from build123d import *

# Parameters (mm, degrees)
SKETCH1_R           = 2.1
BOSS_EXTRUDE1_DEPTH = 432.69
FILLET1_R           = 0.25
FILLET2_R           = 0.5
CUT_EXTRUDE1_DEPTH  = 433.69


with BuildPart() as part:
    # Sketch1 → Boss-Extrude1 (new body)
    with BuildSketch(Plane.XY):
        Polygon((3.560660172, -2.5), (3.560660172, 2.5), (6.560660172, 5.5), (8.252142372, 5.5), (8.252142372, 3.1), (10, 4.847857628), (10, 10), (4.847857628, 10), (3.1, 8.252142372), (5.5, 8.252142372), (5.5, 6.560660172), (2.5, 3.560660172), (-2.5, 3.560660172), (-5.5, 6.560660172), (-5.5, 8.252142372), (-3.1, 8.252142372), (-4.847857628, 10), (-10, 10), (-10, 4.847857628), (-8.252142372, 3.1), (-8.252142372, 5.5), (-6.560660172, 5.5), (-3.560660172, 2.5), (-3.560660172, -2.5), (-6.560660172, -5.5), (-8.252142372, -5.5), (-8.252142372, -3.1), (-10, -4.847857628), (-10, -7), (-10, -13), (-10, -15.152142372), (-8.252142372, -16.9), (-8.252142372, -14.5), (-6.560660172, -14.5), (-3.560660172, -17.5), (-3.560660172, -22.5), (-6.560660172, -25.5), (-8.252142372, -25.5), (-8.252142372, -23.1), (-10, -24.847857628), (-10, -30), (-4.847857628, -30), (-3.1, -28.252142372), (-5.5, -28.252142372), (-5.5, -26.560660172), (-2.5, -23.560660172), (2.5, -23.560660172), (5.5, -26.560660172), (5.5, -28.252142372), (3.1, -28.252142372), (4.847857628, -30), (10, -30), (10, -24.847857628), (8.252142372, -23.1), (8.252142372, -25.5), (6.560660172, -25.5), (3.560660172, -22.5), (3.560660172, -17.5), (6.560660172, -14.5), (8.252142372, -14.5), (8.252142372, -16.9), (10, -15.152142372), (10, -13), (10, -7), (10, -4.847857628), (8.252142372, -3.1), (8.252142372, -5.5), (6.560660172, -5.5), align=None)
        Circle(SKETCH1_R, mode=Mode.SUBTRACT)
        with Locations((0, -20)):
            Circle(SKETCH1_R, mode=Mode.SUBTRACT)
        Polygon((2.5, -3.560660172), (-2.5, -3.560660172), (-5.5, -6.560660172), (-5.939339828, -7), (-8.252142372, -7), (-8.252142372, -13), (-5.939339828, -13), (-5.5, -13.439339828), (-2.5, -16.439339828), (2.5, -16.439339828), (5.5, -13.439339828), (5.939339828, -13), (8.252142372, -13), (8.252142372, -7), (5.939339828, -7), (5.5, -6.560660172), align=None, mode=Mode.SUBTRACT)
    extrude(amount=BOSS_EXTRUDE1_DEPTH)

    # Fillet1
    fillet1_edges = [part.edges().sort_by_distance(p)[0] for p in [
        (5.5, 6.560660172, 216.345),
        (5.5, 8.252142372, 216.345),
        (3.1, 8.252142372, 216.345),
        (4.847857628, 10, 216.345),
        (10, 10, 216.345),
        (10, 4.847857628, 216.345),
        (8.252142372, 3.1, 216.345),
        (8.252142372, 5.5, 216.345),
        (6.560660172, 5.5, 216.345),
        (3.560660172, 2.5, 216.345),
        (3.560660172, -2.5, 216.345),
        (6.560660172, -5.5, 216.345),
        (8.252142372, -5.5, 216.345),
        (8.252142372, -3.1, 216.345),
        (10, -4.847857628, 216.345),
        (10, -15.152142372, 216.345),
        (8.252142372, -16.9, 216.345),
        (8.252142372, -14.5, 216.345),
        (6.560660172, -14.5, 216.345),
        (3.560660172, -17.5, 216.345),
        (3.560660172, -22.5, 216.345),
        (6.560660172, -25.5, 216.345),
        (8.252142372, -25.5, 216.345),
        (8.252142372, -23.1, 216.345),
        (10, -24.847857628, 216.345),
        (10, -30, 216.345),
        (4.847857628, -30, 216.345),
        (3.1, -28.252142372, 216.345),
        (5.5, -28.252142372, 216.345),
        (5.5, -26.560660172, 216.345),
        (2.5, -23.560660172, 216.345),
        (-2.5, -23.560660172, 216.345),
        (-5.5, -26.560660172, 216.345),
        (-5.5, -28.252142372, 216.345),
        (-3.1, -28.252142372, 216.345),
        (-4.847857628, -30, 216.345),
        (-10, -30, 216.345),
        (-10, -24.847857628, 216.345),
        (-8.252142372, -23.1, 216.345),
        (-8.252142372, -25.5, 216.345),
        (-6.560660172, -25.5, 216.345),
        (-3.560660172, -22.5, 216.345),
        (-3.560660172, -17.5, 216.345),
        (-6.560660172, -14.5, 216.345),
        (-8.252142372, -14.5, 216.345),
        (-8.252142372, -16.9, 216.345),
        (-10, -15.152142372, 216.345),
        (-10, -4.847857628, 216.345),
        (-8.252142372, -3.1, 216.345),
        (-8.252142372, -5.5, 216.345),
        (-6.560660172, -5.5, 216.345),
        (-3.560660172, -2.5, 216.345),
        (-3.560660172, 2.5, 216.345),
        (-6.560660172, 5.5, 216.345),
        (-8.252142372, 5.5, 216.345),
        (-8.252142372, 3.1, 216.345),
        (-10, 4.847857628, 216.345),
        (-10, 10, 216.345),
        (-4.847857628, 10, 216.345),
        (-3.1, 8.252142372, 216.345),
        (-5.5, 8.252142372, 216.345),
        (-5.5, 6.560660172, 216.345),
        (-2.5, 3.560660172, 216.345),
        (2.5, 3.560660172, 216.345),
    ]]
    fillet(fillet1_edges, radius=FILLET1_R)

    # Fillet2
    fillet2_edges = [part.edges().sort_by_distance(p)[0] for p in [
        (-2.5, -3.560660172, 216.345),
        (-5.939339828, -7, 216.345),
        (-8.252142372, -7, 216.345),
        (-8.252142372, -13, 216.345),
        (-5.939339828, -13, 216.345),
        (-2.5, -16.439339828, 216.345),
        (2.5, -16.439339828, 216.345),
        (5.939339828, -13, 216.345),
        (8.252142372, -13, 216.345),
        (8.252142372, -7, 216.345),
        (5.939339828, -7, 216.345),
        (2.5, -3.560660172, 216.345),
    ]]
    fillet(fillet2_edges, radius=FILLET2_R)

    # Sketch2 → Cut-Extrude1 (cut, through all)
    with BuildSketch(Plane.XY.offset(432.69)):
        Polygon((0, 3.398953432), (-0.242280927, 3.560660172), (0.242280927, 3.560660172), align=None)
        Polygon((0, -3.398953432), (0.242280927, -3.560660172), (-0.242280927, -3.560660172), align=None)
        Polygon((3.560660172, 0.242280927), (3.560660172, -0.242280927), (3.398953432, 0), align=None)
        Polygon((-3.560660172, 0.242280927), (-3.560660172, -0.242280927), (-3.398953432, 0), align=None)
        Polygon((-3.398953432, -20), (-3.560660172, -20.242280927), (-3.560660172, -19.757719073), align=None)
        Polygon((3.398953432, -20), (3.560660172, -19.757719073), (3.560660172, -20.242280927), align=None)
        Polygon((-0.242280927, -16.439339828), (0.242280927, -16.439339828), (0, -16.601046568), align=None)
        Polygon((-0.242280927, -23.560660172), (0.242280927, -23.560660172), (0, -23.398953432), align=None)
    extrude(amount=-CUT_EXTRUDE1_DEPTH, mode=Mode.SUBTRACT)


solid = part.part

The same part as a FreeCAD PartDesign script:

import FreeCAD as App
import Part
import Sketcher

V = App.Vector


def edges_at(feature, points):
    """Names of the edges that pass closest to the given points."""
    edges = feature.Shape.Edges
    near = lambda p: min(range(len(edges)), key=lambda i: edges[i].distToShape(Part.Vertex(*p))[0])
    return sorted({f"Edge{near(p) + 1}" for p in points})

doc = App.newDocument("Part")
body = doc.addObject("PartDesign::Body", "Body")

# Sketch on XY plane
sketch1 = doc.addObject("Sketcher::SketchObject", "Sketch")
body.addObject(sketch1)
sketch1.AttachmentSupport = (doc.XY_Plane, [""])
sketch1.MapMode = "FlatFace"
sketch1.addGeometry([
    Part.LineSegment(V(3.6, -2.5, 0), V(3.6, 2.5, 0)),  # 0
    Part.LineSegment(V(3.6, 2.5, 0), V(6.6, 5.5, 0)),  # 1
    Part.LineSegment(V(6.6, 5.5, 0), V(8.3, 5.5, 0)),  # 2
    Part.LineSegment(V(8.3, 5.5, 0), V(8.3, 3.1, 0)),  # 3
    Part.LineSegment(V(8.3, 3.1, 0), V(10, 4.8, 0)),  # 4
    Part.LineSegment(V(10, 4.8, 0), V(10, 10, 0)),  # 5
    Part.LineSegment(V(10, 10, 0), V(4.8, 10, 0)),  # 6
    Part.LineSegment(V(4.8, 10, 0), V(3.1, 8.3, 0)),  # 7
    Part.LineSegment(V(3.1, 8.3, 0), V(5.5, 8.3, 0)),  # 8
    Part.LineSegment(V(5.5, 8.3, 0), V(5.5, 6.6, 0)),  # 9
    Part.LineSegment(V(5.5, 6.6, 0), V(2.5, 3.6, 0)),  # 10
    Part.LineSegment(V(2.5, 3.6, 0), V(-2.5, 3.6, 0)),  # 11
    Part.LineSegment(V(-2.5, 3.6, 0), V(-5.5, 6.6, 0)),  # 12
    Part.LineSegment(V(-5.5, 6.6, 0), V(-5.5, 8.3, 0)),  # 13
    Part.LineSegment(V(-5.5, 8.3, 0), V(-3.1, 8.3, 0)),  # 14
    Part.LineSegment(V(-3.1, 8.3, 0), V(-4.8, 10, 0)),  # 15
    Part.LineSegment(V(-4.8, 10, 0), V(-10, 10, 0)),  # 16
    Part.LineSegment(V(-10, 10, 0), V(-10, 4.8, 0)),  # 17
    Part.LineSegment(V(-10, 4.8, 0), V(-8.3, 3.1, 0)),  # 18
    Part.LineSegment(V(-8.3, 3.1, 0), V(-8.3, 5.5, 0)),  # 19
    Part.LineSegment(V(-8.3, 5.5, 0), V(-6.6, 5.5, 0)),  # 20
    Part.LineSegment(V(-6.6, 5.5, 0), V(-3.6, 2.5, 0)),  # 21
    Part.LineSegment(V(-3.6, 2.5, 0), V(-3.6, -2.5, 0)),  # 22
    Part.LineSegment(V(-3.6, -2.5, 0), V(-6.6, -5.5, 0)),  # 23
    Part.LineSegment(V(-6.6, -5.5, 0), V(-8.3, -5.5, 0)),  # 24
    Part.LineSegment(V(-8.3, -5.5, 0), V(-8.3, -3.1, 0)),  # 25
    Part.LineSegment(V(-8.3, -3.1, 0), V(-10, -4.8, 0)),  # 26
    Part.LineSegment(V(-10, -4.8, 0), V(-10, -15.2, 0)),  # 27
    Part.LineSegment(V(-10, -15.2, 0), V(-8.3, -16.9, 0)),  # 28
    Part.LineSegment(V(-8.3, -16.9, 0), V(-8.3, -14.5, 0)),  # 29
    Part.LineSegment(V(-8.3, -14.5, 0), V(-6.6, -14.5, 0)),  # 30
    Part.LineSegment(V(-6.6, -14.5, 0), V(-3.6, -17.5, 0)),  # 31
    Part.LineSegment(V(-3.6, -17.5, 0), V(-3.6, -22.5, 0)),  # 32
    Part.LineSegment(V(-3.6, -22.5, 0), V(-6.6, -25.5, 0)),  # 33
    Part.LineSegment(V(-6.6, -25.5, 0), V(-8.3, -25.5, 0)),  # 34
    Part.LineSegment(V(-8.3, -25.5, 0), V(-8.3, -23.1, 0)),  # 35
    Part.LineSegment(V(-8.3, -23.1, 0), V(-10, -24.8, 0)),  # 36
    Part.LineSegment(V(-10, -24.8, 0), V(-10, -30, 0)),  # 37
    Part.LineSegment(V(-10, -30, 0), V(-4.8, -30, 0)),  # 38
    Part.LineSegment(V(-4.8, -30, 0), V(-3.1, -28.3, 0)),  # 39
    Part.LineSegment(V(-3.1, -28.3, 0), V(-5.5, -28.3, 0)),  # 40
    Part.LineSegment(V(-5.5, -28.3, 0), V(-5.5, -26.6, 0)),  # 41
    Part.LineSegment(V(-5.5, -26.6, 0), V(-2.5, -23.6, 0)),  # 42
    Part.LineSegment(V(-2.5, -23.6, 0), V(2.5, -23.6, 0)),  # 43
    Part.LineSegment(V(2.5, -23.6, 0), V(5.5, -26.6, 0)),  # 44
    Part.LineSegment(V(5.5, -26.6, 0), V(5.5, -28.3, 0)),  # 45
    Part.LineSegment(V(5.5, -28.3, 0), V(3.1, -28.3, 0)),  # 46
    Part.LineSegment(V(3.1, -28.3, 0), V(4.8, -30, 0)),  # 47
    Part.LineSegment(V(4.8, -30, 0), V(10, -30, 0)),  # 48
    Part.LineSegment(V(10, -30, 0), V(10, -24.8, 0)),  # 49
    Part.LineSegment(V(10, -24.8, 0), V(8.3, -23.1, 0)),  # 50
    Part.LineSegment(V(8.3, -23.1, 0), V(8.3, -25.5, 0)),  # 51
    Part.LineSegment(V(8.3, -25.5, 0), V(6.6, -25.5, 0)),  # 52
    Part.LineSegment(V(6.6, -25.5, 0), V(3.6, -22.5, 0)),  # 53
    Part.LineSegment(V(3.6, -22.5, 0), V(3.6, -17.5, 0)),  # 54
    Part.LineSegment(V(3.6, -17.5, 0), V(6.6, -14.5, 0)),  # 55
    Part.LineSegment(V(6.6, -14.5, 0), V(8.3, -14.5, 0)),  # 56
    Part.LineSegment(V(8.3, -14.5, 0), V(8.3, -16.9, 0)),  # 57
    Part.LineSegment(V(8.3, -16.9, 0), V(10, -15.2, 0)),  # 58
    Part.LineSegment(V(10, -15.2, 0), V(10, -4.8, 0)),  # 59
    Part.LineSegment(V(10, -4.8, 0), V(8.3, -3.1, 0)),  # 60
    Part.LineSegment(V(8.3, -3.1, 0), V(8.3, -5.5, 0)),  # 61
    Part.LineSegment(V(8.3, -5.5, 0), V(6.6, -5.5, 0)),  # 62
    Part.LineSegment(V(6.6, -5.5, 0), V(3.6, -2.5, 0)),  # 63
    Part.Circle(V(0, -20, 0), V(0, 0, 1), 2.1),  # 64
    Part.LineSegment(V(-2.5, -3.6, 0), V(2.5, -3.6, 0)),  # 65
    Part.LineSegment(V(2.5, -3.6, 0), V(5.9, -7, 0)),  # 66
    Part.LineSegment(V(5.9, -7, 0), V(8.3, -7, 0)),  # 67
    Part.LineSegment(V(8.3, -7, 0), V(8.3, -13, 0)),  # 68
    Part.LineSegment(V(8.3, -13, 0), V(5.9, -13, 0)),  # 69
    Part.LineSegment(V(5.9, -13, 0), V(2.5, -16.4, 0)),  # 70
    Part.LineSegment(V(2.5, -16.4, 0), V(-2.5, -16.4, 0)),  # 71
    Part.LineSegment(V(-2.5, -16.4, 0), V(-5.9, -13, 0)),  # 72
    Part.LineSegment(V(-5.9, -13, 0), V(-8.3, -13, 0)),  # 73
    Part.LineSegment(V(-8.3, -13, 0), V(-8.3, -7, 0)),  # 74
    Part.LineSegment(V(-8.3, -7, 0), V(-5.9, -7, 0)),  # 75
    Part.LineSegment(V(-5.9, -7, 0), V(-2.5, -3.6, 0)),  # 76
    Part.Circle(V(0, 0, 0), V(0, 0, 1), 2.1),  # 77
], False)
sketch1.addConstraint([
    Sketcher.Constraint("Coincident", 0, 2, 1, 1),
    Sketcher.Constraint("Coincident", 1, 2, 2, 1),
    Sketcher.Constraint("Coincident", 2, 2, 3, 1),
    Sketcher.Constraint("Coincident", 3, 2, 4, 1),
    Sketcher.Constraint("Coincident", 4, 2, 5, 1),
    Sketcher.Constraint("Coincident", 5, 2, 6, 1),
    Sketcher.Constraint("Coincident", 6, 2, 7, 1),
    Sketcher.Constraint("Coincident", 7, 2, 8, 1),
    Sketcher.Constraint("Coincident", 8, 2, 9, 1),
    Sketcher.Constraint("Coincident", 9, 2, 10, 1),
    Sketcher.Constraint("Coincident", 10, 2, 11, 1),
    Sketcher.Constraint("Coincident", 11, 2, 12, 1),
    Sketcher.Constraint("Coincident", 12, 2, 13, 1),
    Sketcher.Constraint("Coincident", 13, 2, 14, 1),
    Sketcher.Constraint("Coincident", 14, 2, 15, 1),
    Sketcher.Constraint("Coincident", 15, 2, 16, 1),
    Sketcher.Constraint("Coincident", 16, 2, 17, 1),
    Sketcher.Constraint("Coincident", 17, 2, 18, 1),
    Sketcher.Constraint("Coincident", 18, 2, 19, 1),
    Sketcher.Constraint("Coincident", 19, 2, 20, 1),
    Sketcher.Constraint("Coincident", 20, 2, 21, 1),
    Sketcher.Constraint("Coincident", 21, 2, 22, 1),
    Sketcher.Constraint("Coincident", 22, 2, 23, 1),
    Sketcher.Constraint("Coincident", 23, 2, 24, 1),
    Sketcher.Constraint("Coincident", 24, 2, 25, 1),
    Sketcher.Constraint("Coincident", 25, 2, 26, 1),
    Sketcher.Constraint("Coincident", 26, 2, 27, 1),
    Sketcher.Constraint("Coincident", 27, 2, 28, 1),
    Sketcher.Constraint("Coincident", 28, 2, 29, 1),
    Sketcher.Constraint("Coincident", 29, 2, 30, 1),
    Sketcher.Constraint("Coincident", 30, 2, 31, 1),
    Sketcher.Constraint("Coincident", 31, 2, 32, 1),
    Sketcher.Constraint("Coincident", 32, 2, 33, 1),
    Sketcher.Constraint("Coincident", 33, 2, 34, 1),
    Sketcher.Constraint("Coincident", 34, 2, 35, 1),
    Sketcher.Constraint("Coincident", 35, 2, 36, 1),
    Sketcher.Constraint("Coincident", 36, 2, 37, 1),
    Sketcher.Constraint("Coincident", 37, 2, 38, 1),
    Sketcher.Constraint("Coincident", 38, 2, 39, 1),
    Sketcher.Constraint("Coincident", 39, 2, 40, 1),
    Sketcher.Constraint("Coincident", 40, 2, 41, 1),
    Sketcher.Constraint("Coincident", 41, 2, 42, 1),
    Sketcher.Constraint("Coincident", 42, 2, 43, 1),
    Sketcher.Constraint("Coincident", 43, 2, 44, 1),
    Sketcher.Constraint("Coincident", 44, 2, 45, 1),
    Sketcher.Constraint("Coincident", 45, 2, 46, 1),
    Sketcher.Constraint("Coincident", 46, 2, 47, 1),
    Sketcher.Constraint("Coincident", 47, 2, 48, 1),
    Sketcher.Constraint("Coincident", 48, 2, 49, 1),
    Sketcher.Constraint("Coincident", 49, 2, 50, 1),
    Sketcher.Constraint("Coincident", 50, 2, 51, 1),
    Sketcher.Constraint("Coincident", 51, 2, 52, 1),
    Sketcher.Constraint("Coincident", 52, 2, 53, 1),
    Sketcher.Constraint("Coincident", 53, 2, 54, 1),
    Sketcher.Constraint("Coincident", 54, 2, 55, 1),
    Sketcher.Constraint("Coincident", 55, 2, 56, 1),
    Sketcher.Constraint("Coincident", 56, 2, 57, 1),
    Sketcher.Constraint("Coincident", 57, 2, 58, 1),
    Sketcher.Constraint("Coincident", 58, 2, 59, 1),
    Sketcher.Constraint("Coincident", 59, 2, 60, 1),
    Sketcher.Constraint("Coincident", 60, 2, 61, 1),
    Sketcher.Constraint("Coincident", 61, 2, 62, 1),
    Sketcher.Constraint("Coincident", 62, 2, 63, 1),
    Sketcher.Constraint("Coincident", 63, 2, 0, 1),
    Sketcher.Constraint("Coincident", 65, 2, 66, 1),
    Sketcher.Constraint("Coincident", 66, 2, 67, 1),
    Sketcher.Constraint("Coincident", 67, 2, 68, 1),
    Sketcher.Constraint("Coincident", 68, 2, 69, 1),
    Sketcher.Constraint("Coincident", 69, 2, 70, 1),
    Sketcher.Constraint("Coincident", 70, 2, 71, 1),
    Sketcher.Constraint("Coincident", 71, 2, 72, 1),
    Sketcher.Constraint("Coincident", 72, 2, 73, 1),
    Sketcher.Constraint("Coincident", 73, 2, 74, 1),
    Sketcher.Constraint("Coincident", 74, 2, 75, 1),
    Sketcher.Constraint("Coincident", 75, 2, 76, 1),
    Sketcher.Constraint("Coincident", 76, 2, 65, 1),
    Sketcher.Constraint("Vertical", 0),
    Sketcher.Constraint("Horizontal", 2),
    Sketcher.Constraint("Vertical", 3),
    Sketcher.Constraint("Vertical", 5),
    Sketcher.Constraint("Horizontal", 6),
    Sketcher.Constraint("Horizontal", 8),
    Sketcher.Constraint("Vertical", 9),
    Sketcher.Constraint("Horizontal", 11),
    Sketcher.Constraint("Vertical", 13),
    Sketcher.Constraint("Horizontal", 14),
    Sketcher.Constraint("Horizontal", 16),
    Sketcher.Constraint("Vertical", 17),
    Sketcher.Constraint("Vertical", 19),
    Sketcher.Constraint("Horizontal", 20),
    Sketcher.Constraint("Vertical", 22),
    Sketcher.Constraint("Horizontal", 24),
    Sketcher.Constraint("Vertical", 25),
    Sketcher.Constraint("Vertical", 27),
    Sketcher.Constraint("Vertical", 29),
    Sketcher.Constraint("Horizontal", 30),
    Sketcher.Constraint("Vertical", 32),
    Sketcher.Constraint("Horizontal", 34),
    Sketcher.Constraint("Vertical", 35),
    Sketcher.Constraint("Vertical", 37),
    Sketcher.Constraint("Horizontal", 38),
    Sketcher.Constraint("Horizontal", 40),
    Sketcher.Constraint("Vertical", 41),
    Sketcher.Constraint("Horizontal", 43),
    Sketcher.Constraint("Vertical", 45),
    Sketcher.Constraint("Horizontal", 46),
    Sketcher.Constraint("Horizontal", 48),
    Sketcher.Constraint("Vertical", 49),
    Sketcher.Constraint("Vertical", 51),
    Sketcher.Constraint("Horizontal", 52),
    Sketcher.Constraint("Vertical", 54),
    Sketcher.Constraint("Horizontal", 56),
    Sketcher.Constraint("Vertical", 57),
    Sketcher.Constraint("Vertical", 59),
    Sketcher.Constraint("Vertical", 61),
    Sketcher.Constraint("Horizontal", 62),
    Sketcher.Constraint("Horizontal", 65),
    Sketcher.Constraint("Horizontal", 67),
    Sketcher.Constraint("Vertical", 68),
    Sketcher.Constraint("Horizontal", 69),
    Sketcher.Constraint("Horizontal", 71),
    Sketcher.Constraint("Horizontal", 73),
    Sketcher.Constraint("Vertical", 74),
    Sketcher.Constraint("Horizontal", 75),
    Sketcher.Constraint("Coincident", 77, 3, -1, 1),
    Sketcher.Constraint("Equal", 64, 77),
    Sketcher.Constraint("Symmetric", 0, 2, 22, 2, -1, 1),
    Sketcher.Constraint("Symmetric", 1, 2, 23, 2, -1, 1),
    Sketcher.Constraint("Symmetric", 3, 2, 25, 2, -1, 1),
    Sketcher.Constraint("Symmetric", 4, 2, 26, 2, -1, 1),
    Sketcher.Constraint("Symmetric", 17, 2, 59, 2, -1, 1),
    Sketcher.Constraint("Symmetric", 18, 2, 60, 2, -1, 1),
    Sketcher.Constraint("Symmetric", 20, 2, 62, 2, -1, 1),
    Sketcher.Constraint("Symmetric", 11, 2, 65, 2, -1, 1),
    Sketcher.Constraint("Symmetric", 9, 2, 12, 2, -2),
    Sketcher.Constraint("Symmetric", 7, 2, 14, 2, -2),
    Sketcher.Constraint("Symmetric", 6, 2, 15, 2, -2),
    Sketcher.Constraint("Symmetric", 4, 2, 17, 2, -2),
    Sketcher.Constraint("Symmetric", 3, 2, 18, 2, -2),
    Sketcher.Constraint("Symmetric", 1, 2, 20, 2, -2),
    Sketcher.Constraint("Symmetric", 41, 2, 44, 2, -2),
    Sketcher.Constraint("Symmetric", 39, 2, 46, 2, -2),
    Sketcher.Constraint("Symmetric", 38, 2, 47, 2, -2),
    Sketcher.Constraint("Symmetric", 36, 2, 49, 2, -2),
    Sketcher.Constraint("Symmetric", 35, 2, 50, 2, -2),
    Sketcher.Constraint("Symmetric", 33, 2, 52, 2, -2),
    Sketcher.Constraint("Symmetric", 32, 2, 53, 2, -2),
    Sketcher.Constraint("Symmetric", 30, 2, 55, 2, -2),
    Sketcher.Constraint("Symmetric", 28, 2, 57, 2, -2),
    Sketcher.Constraint("Symmetric", 69, 2, 72, 2, -2),
    Sketcher.Constraint("Symmetric", 67, 2, 74, 2, -2),
    Sketcher.Constraint("PointOnObject", 64, 3, -2),
    Sketcher.Constraint("Parallel", 1, 4),
    Sketcher.Constraint("Parallel", 4, 7),
    Sketcher.Constraint("Parallel", 7, 10),
    Sketcher.Constraint("Perpendicular", 10, 12),
    Sketcher.Constraint("Parallel", 12, 15),
    Sketcher.Constraint("Parallel", 18, 21),
    Sketcher.Constraint("Perpendicular", 26, 28),
    Sketcher.Constraint("Parallel", 28, 31),
    Sketcher.Constraint("Perpendicular", 31, 33),
    Sketcher.Constraint("Parallel", 33, 36),
    Sketcher.Constraint("Parallel", 36, 39),
    Sketcher.Constraint("Parallel", 39, 42),
    Sketcher.Constraint("Perpendicular", 42, 44),
    Sketcher.Constraint("Perpendicular", 53, 55),
    Sketcher.Constraint("Parallel", 55, 58),
    Sketcher.Constraint("Parallel", 60, 63),
    Sketcher.Constraint("Parallel", 63, 66),
    Sketcher.Constraint("Perpendicular", 66, 70),
    Sketcher.Constraint("Perpendicular", 70, 72),
    Sketcher.Constraint("Perpendicular", 72, 76),
    Sketcher.Constraint("Vertical", 25, 2, 28, 2),
    Sketcher.Constraint("Vertical", 23, 2, 30, 2),
    Sketcher.Constraint("Vertical", 22, 2, 31, 2),
    Sketcher.Constraint("Vertical", 30, 2, 33, 2),
    Sketcher.Constraint("Vertical", 29, 2, 34, 2),
    Sketcher.Constraint("Vertical", 27, 2, 36, 2),
    Sketcher.Constraint("Vertical", 15, 2, 38, 2),
    Sketcher.Constraint("Vertical", 14, 2, 39, 2),
    Sketcher.Constraint("Vertical", 13, 2, 40, 2),
    Sketcher.Constraint("Vertical", 11, 2, 42, 2),
    Sketcher.Constraint("Vertical", 61, 2, 67, 2),
    Sketcher.Constraint("Vertical", 66, 2, 69, 2),
    Sketcher.Constraint("Vertical", 65, 2, 70, 2),
    Sketcher.Constraint("Vertical", 72, 2, 75, 2),
    Sketcher.Constraint("Equal", 71, 0),
    Sketcher.Constraint("Equal", 46, 3),
    Sketcher.Constraint("Equal", 48, 5),
    Sketcher.Constraint("Equal", 62, 9),
    Sketcher.Constraint("Equal", 25, 29),
    Sketcher.Constraint("Equal", 22, 32),
    Sketcher.Constraint("Equal", 29, 35),
    Sketcher.Constraint("Equal", 17, 37),
    Sketcher.Constraint("Equal", 13, 41),
    Sketcher.Constraint("Equal", 4, 7),
    Sketcher.Constraint("Equal", 1, 10),
    Sketcher.Constraint("Diameter", 64, 4.2),
    Sketcher.Constraint("DistanceX", 11, 2, 11, 1, 5.0),
    Sketcher.Constraint("DistanceY", 68, 2, 68, 1, 6.0),
    Sketcher.Constraint("DistanceX", 8, 1, 8, 2, 2.4),
    Sketcher.Constraint("DistanceY", 64, 3, -1, 1, 20.0),
    Sketcher.Constraint("DistanceX", -1, 1, 4, 2, 10.0),
    Sketcher.Constraint("DistanceY", 37, 2, -1, 1, 30.0),
    Sketcher.Constraint("DistanceY", 66, 2, -1, 1, 7.0),
    Sketcher.Constraint("DistanceY", -1, 1, 1, 2, 5.5),
    Sketcher.Constraint("Distance", 66, 4.863961),
    Sketcher.Constraint("DistanceX", 2, 1, 2, 2, 1.691482),
])
pad1 = doc.addObject("PartDesign::Pad", "Pad")
body.addObject(pad1)
pad1.Profile = sketch1
pad1.Length = 432.69
doc.recompute()

fillet = doc.addObject("PartDesign::Fillet", "Fillet")
body.addObject(fillet)
fillet.Base = (pad1, edges_at(pad1, [
    (5.5, 6.561, 216.345),
    (5.5, 8.252, 216.345),
    (3.1, 8.252, 216.345),
    (4.848, 10, 216.345),
    (10, 10, 216.345),
    (10, 4.848, 216.345),
    (8.252, 3.1, 216.345),
    (8.252, 5.5, 216.345),
    (6.561, 5.5, 216.345),
    (3.561, 2.5, 216.345),
    (3.561, -2.5, 216.345),
    (6.561, -5.5, 216.345),
    (8.252, -5.5, 216.345),
    (8.252, -3.1, 216.345),
    (10, -4.848, 216.345),
    (10, -15.152, 216.345),
    (8.252, -16.9, 216.345),
    (8.252, -14.5, 216.345),
    (6.561, -14.5, 216.345),
    (3.561, -17.5, 216.345),
    (3.561, -22.5, 216.345),
    (6.561, -25.5, 216.345),
    (8.252, -25.5, 216.345),
    (8.252, -23.1, 216.345),
    (10, -24.848, 216.345),
    (10, -30, 216.345),
    (4.848, -30, 216.345),
    (3.1, -28.252, 216.345),
    (5.5, -28.252, 216.345),
    (5.5, -26.561, 216.345),
    (2.5, -23.561, 216.345),
    (-2.5, -23.561, 216.345),
    (-5.5, -26.561, 216.345),
    (-5.5, -28.252, 216.345),
    (-3.1, -28.252, 216.345),
    (-4.848, -30, 216.345),
    (-10, -30, 216.345),
    (-10, -24.848, 216.345),
    (-8.252, -23.1, 216.345),
    (-8.252, -25.5, 216.345),
    (-6.561, -25.5, 216.345),
    (-3.561, -22.5, 216.345),
    (-3.561, -17.5, 216.345),
    (-6.561, -14.5, 216.345),
    (-8.252, -14.5, 216.345),
    (-8.252, -16.9, 216.345),
    (-10, -15.152, 216.345),
    (-10, -4.848, 216.345),
    (-8.252, -3.1, 216.345),
    (-8.252, -5.5, 216.345),
    (-6.561, -5.5, 216.345),
    (-3.561, -2.5, 216.345),
    (-3.561, 2.5, 216.345),
    (-6.561, 5.5, 216.345),
    (-8.252, 5.5, 216.345),
    (-8.252, 3.1, 216.345),
    (-10, 4.848, 216.345),
    (-10, 10, 216.345),
    (-4.848, 10, 216.345),
    (-3.1, 8.252, 216.345),
    (-5.5, 8.252, 216.345),
    (-5.5, 6.561, 216.345),
    (-2.5, 3.561, 216.345),
    (2.5, 3.561, 216.345),
]))
fillet.Radius = 0.25
doc.recompute()

fillet2 = doc.addObject("PartDesign::Fillet", "Fillet001")
body.addObject(fillet2)
fillet2.Base = (fillet, edges_at(fillet, [
    (-2.5, -3.561, 216.345),
    (-5.939, -7, 216.345),
    (-8.252, -7, 216.345),
    (-8.252, -13, 216.345),
    (-5.939, -13, 216.345),
    (-2.5, -16.439, 216.345),
    (2.5, -16.439, 216.345),
    (5.939, -13, 216.345),
    (8.252, -13, 216.345),
    (8.252, -7, 216.345),
    (5.939, -7, 216.345),
    (2.5, -3.561, 216.345),
]))
fillet2.Radius = 0.5

# Sketch on XY plane
sketch2 = doc.addObject("Sketcher::SketchObject", "Sketch001")
body.addObject(sketch2)
sketch2.AttachmentSupport = (doc.XY_Plane, [""])
sketch2.MapMode = "FlatFace"
sketch2.AttachmentOffset = App.Placement(V(0, 0, 432.69), App.Rotation())
sketch2.addGeometry([
    Part.LineSegment(V(-0.24, 3.56, 0), V(0, 3.4, 0)),  # 0
    Part.LineSegment(V(0, 3.4, 0), V(0.24, 3.56, 0)),  # 1
    Part.LineSegment(V(0.24, 3.56, 0), V(-0.24, 3.56, 0)),  # 2
    Part.LineSegment(V(0.24, -3.56, 0), V(0, -3.4, 0)),  # 3
    Part.LineSegment(V(0, -3.4, 0), V(-0.24, -3.56, 0)),  # 4
    Part.LineSegment(V(-0.24, -3.56, 0), V(0.24, -3.56, 0)),  # 5
    Part.LineSegment(V(3.56, -0.24, 0), V(3.56, 0.24, 0)),  # 6
    Part.LineSegment(V(3.56, 0.24, 0), V(3.4, 0, 0)),  # 7
    Part.LineSegment(V(3.4, 0, 0), V(3.56, -0.24, 0)),  # 8
    Part.LineSegment(V(-3.56, 0.24, 0), V(-3.56, -0.24, 0)),  # 9
    Part.LineSegment(V(-3.56, -0.24, 0), V(-3.4, 0, 0)),  # 10
    Part.LineSegment(V(-3.4, 0, 0), V(-3.56, 0.24, 0)),  # 11
    Part.LineSegment(V(-3.56, -20.24, 0), V(-3.4, -20, 0)),  # 12
    Part.LineSegment(V(-3.4, -20, 0), V(-3.56, -19.76, 0)),  # 13
    Part.LineSegment(V(-3.56, -19.76, 0), V(-3.56, -20.24, 0)),  # 14
    Part.LineSegment(V(3.56, -19.76, 0), V(3.4, -20, 0)),  # 15
    Part.LineSegment(V(3.4, -20, 0), V(3.56, -20.24, 0)),  # 16
    Part.LineSegment(V(3.56, -20.24, 0), V(3.56, -19.76, 0)),  # 17
    Part.LineSegment(V(0.24, -16.44, 0), V(-0.24, -16.44, 0)),  # 18
    Part.LineSegment(V(-0.24, -16.44, 0), V(0, -16.6, 0)),  # 19
    Part.LineSegment(V(0, -16.6, 0), V(0.24, -16.44, 0)),  # 20
    Part.LineSegment(V(-0.24, -23.56, 0), V(0.24, -23.56, 0)),  # 21
    Part.LineSegment(V(0.24, -23.56, 0), V(0, -23.4, 0)),  # 22
    Part.LineSegment(V(0, -23.4, 0), V(-0.24, -23.56, 0)),  # 23
], False)
sketch2.addConstraint([
    Sketcher.Constraint("Coincident", 0, 2, 1, 1),
    Sketcher.Constraint("Coincident", 1, 2, 2, 1),
    Sketcher.Constraint("Coincident", 2, 2, 0, 1),
    Sketcher.Constraint("Coincident", 3, 2, 4, 1),
    Sketcher.Constraint("Coincident", 4, 2, 5, 1),
    Sketcher.Constraint("Coincident", 5, 2, 3, 1),
    Sketcher.Constraint("Coincident", 6, 2, 7, 1),
    Sketcher.Constraint("Coincident", 7, 2, 8, 1),
    Sketcher.Constraint("Coincident", 8, 2, 6, 1),
    Sketcher.Constraint("Coincident", 9, 2, 10, 1),
    Sketcher.Constraint("Coincident", 10, 2, 11, 1),
    Sketcher.Constraint("Coincident", 11, 2, 9, 1),
    Sketcher.Constraint("Coincident", 12, 2, 13, 1),
    Sketcher.Constraint("Coincident", 13, 2, 14, 1),
    Sketcher.Constraint("Coincident", 14, 2, 12, 1),
    Sketcher.Constraint("Coincident", 15, 2, 16, 1),
    Sketcher.Constraint("Coincident", 16, 2, 17, 1),
    Sketcher.Constraint("Coincident", 17, 2, 15, 1),
    Sketcher.Constraint("Coincident", 18, 2, 19, 1),
    Sketcher.Constraint("Coincident", 19, 2, 20, 1),
    Sketcher.Constraint("Coincident", 20, 2, 18, 1),
    Sketcher.Constraint("Coincident", 21, 2, 22, 1),
    Sketcher.Constraint("Coincident", 22, 2, 23, 1),
    Sketcher.Constraint("Coincident", 23, 2, 21, 1),
    Sketcher.Constraint("Horizontal", 2),
    Sketcher.Constraint("Horizontal", 5),
    Sketcher.Constraint("Vertical", 6),
    Sketcher.Constraint("Vertical", 9),
    Sketcher.Constraint("Vertical", 14),
    Sketcher.Constraint("Vertical", 17),
    Sketcher.Constraint("Horizontal", 18),
    Sketcher.Constraint("Horizontal", 21),
    Sketcher.Constraint("Symmetric", 0, 2, 3, 2, -1, 1),
    Sketcher.Constraint("Symmetric", 1, 2, 4, 2, -1, 1),
    Sketcher.Constraint("Symmetric", 6, 2, 9, 2, -1, 1),
    Sketcher.Constraint("Symmetric", 7, 2, 10, 2, -1, 1),
    Sketcher.Constraint("Symmetric", 12, 2, 15, 2, -2),
    Sketcher.Constraint("Symmetric", 14, 2, 16, 2, -2),
    Sketcher.Constraint("PointOnObject", 0, 2, -2),
    Sketcher.Constraint("PointOnObject", 7, 2, -1),
    Sketcher.Constraint("PointOnObject", 19, 2, -2),
    Sketcher.Constraint("PointOnObject", 22, 2, -2),
    Sketcher.Constraint("Parallel", 0, 3),
    Sketcher.Constraint("Perpendicular", 3, 7),
    Sketcher.Constraint("Perpendicular", 4, 8),
    Sketcher.Constraint("Parallel", 8, 11),
    Sketcher.Constraint("Parallel", 10, 12),
    Sketcher.Constraint("Parallel", 11, 13),
    Sketcher.Constraint("Parallel", 12, 15),
    Sketcher.Constraint("Parallel", 13, 16),
    Sketcher.Constraint("Perpendicular", 15, 19),
    Sketcher.Constraint("Perpendicular", 16, 20),
    Sketcher.Constraint("Parallel", 19, 22),
    Sketcher.Constraint("Parallel", 20, 23),
    Sketcher.Constraint("Vertical", 10, 2, 12, 2),
    Sketcher.Constraint("Vertical", 11, 2, 13, 2),
    Sketcher.Constraint("Vertical", 4, 2, 18, 2),
    Sketcher.Constraint("Vertical", 20, 2, 21, 2),
    Sketcher.Constraint("Equal", 21, 6),
    Sketcher.Constraint("DistanceY", 12, 2, -1, 1, 20.0),
    Sketcher.Constraint("DistanceX", 2, 2, 2, 1, 0.484562),
    Sketcher.Constraint("Distance", 0, 0.291289),
    Sketcher.Constraint("DistanceY", -1, 1, 1, 2, 3.56066),
    Sketcher.Constraint("DistanceX", -1, 1, 6, 2, 3.56066),
    Sketcher.Constraint("DistanceY", 18, 2, -1, 1, 16.43934),
    Sketcher.Constraint("DistanceY", 21, 2, -1, 1, 23.56066),
])
pocket1 = doc.addObject("PartDesign::Pocket", "Pocket")
body.addObject(pocket1)
pocket1.Profile = sketch2
pocket1.Type = "ThroughAll"

doc.recompute()
